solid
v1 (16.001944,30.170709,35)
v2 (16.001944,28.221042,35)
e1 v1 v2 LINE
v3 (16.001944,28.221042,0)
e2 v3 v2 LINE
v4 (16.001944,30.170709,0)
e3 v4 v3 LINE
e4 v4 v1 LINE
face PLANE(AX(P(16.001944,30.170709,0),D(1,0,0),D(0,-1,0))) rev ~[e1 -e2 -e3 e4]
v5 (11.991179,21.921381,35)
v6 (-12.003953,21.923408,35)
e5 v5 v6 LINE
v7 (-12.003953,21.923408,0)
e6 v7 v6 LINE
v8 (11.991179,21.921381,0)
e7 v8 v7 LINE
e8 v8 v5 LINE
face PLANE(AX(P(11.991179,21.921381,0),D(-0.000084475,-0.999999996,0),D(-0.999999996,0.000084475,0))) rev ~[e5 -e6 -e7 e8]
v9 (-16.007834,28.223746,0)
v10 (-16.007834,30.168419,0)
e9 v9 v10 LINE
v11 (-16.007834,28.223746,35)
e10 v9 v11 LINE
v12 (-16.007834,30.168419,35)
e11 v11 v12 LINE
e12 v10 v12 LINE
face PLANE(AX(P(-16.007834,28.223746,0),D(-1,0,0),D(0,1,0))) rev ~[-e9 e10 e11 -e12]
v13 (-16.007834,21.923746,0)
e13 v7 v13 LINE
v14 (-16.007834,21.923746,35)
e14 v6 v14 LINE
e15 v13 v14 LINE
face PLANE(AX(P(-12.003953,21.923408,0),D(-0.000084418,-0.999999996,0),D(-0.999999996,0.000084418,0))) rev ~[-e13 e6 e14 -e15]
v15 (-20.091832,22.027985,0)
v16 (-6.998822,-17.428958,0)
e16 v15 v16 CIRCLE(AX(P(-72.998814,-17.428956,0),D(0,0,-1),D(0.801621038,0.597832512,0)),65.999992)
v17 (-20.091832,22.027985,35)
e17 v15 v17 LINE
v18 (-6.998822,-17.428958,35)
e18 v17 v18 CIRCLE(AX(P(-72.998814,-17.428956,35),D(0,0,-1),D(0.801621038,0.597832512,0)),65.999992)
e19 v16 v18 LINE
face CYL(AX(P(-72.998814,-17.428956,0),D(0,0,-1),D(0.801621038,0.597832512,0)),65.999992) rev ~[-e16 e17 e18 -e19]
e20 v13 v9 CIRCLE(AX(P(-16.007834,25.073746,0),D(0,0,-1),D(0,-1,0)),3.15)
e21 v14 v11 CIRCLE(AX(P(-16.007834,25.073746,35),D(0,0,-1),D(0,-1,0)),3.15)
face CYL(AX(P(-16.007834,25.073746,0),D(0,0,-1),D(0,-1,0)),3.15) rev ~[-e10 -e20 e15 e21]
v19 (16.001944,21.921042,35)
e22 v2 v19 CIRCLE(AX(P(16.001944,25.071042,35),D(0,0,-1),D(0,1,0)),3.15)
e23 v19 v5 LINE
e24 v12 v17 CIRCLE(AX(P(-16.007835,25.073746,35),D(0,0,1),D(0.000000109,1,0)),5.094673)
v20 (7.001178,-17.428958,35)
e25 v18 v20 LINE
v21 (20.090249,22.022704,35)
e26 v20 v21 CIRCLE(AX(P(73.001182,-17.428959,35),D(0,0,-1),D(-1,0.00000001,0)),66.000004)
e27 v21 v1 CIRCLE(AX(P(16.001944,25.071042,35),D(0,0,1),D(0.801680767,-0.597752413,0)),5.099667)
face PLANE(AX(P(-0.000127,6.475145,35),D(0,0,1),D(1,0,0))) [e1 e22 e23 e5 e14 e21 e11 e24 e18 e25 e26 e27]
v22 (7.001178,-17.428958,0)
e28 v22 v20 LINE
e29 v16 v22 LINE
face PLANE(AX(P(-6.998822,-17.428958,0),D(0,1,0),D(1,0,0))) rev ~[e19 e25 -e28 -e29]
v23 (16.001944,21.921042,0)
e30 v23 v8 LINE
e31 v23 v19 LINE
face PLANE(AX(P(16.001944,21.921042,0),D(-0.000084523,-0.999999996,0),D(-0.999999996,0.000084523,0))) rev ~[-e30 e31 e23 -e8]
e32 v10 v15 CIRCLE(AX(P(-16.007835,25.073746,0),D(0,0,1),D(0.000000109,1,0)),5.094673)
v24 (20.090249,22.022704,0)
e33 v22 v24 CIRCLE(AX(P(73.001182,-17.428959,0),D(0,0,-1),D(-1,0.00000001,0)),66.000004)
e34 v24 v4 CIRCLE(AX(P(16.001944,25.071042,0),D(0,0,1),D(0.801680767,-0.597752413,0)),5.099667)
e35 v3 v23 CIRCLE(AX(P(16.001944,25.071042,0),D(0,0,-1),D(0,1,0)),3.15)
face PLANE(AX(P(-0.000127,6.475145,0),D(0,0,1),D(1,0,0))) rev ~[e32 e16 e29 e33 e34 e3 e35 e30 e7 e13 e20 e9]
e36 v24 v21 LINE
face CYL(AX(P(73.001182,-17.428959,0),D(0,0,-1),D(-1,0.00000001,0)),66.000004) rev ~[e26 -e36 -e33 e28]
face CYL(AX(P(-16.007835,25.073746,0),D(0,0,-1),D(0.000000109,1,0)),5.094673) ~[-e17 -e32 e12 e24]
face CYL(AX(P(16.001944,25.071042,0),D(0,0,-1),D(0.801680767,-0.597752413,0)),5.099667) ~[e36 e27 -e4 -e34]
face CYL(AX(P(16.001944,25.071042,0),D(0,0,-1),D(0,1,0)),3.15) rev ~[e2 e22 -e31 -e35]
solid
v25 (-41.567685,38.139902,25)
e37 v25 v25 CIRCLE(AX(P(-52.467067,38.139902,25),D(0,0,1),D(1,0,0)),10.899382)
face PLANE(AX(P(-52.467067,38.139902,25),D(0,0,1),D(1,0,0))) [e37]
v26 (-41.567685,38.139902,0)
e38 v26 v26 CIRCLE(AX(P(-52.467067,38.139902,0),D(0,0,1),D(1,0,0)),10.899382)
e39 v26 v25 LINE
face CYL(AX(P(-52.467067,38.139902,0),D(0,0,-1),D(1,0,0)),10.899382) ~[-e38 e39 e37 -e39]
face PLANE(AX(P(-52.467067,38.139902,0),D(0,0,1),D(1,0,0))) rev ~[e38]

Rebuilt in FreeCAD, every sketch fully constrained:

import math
import FreeCAD as App
import Part
import Sketcher
from FreeCAD import Vector
Q = App.Units.Quantity

doc = App.newDocument("Part")
params = doc.addObject("Spreadsheet::Sheet", "Params")
for row, (alias, value) in enumerate([
    ("sketch1_width", "14 mm"),
    ("sketch1_radius", "3.15 mm"),
    ("pad1_length", "35 mm"),
    ("pad2_length", "25 mm"),
], start=1):
    params.set(f"A{row}", alias)
    params.set(f"B{row}", "=" + value)
    params.setAlias(f"B{row}", alias)

body = doc.addObject("PartDesign::Body", "Body")

sketch1 = body.newObject("Sketcher::SketchObject", "Sketch")
sketch1.AttachmentSupport = (doc.getObject("XY_Plane"), [""])
sketch1.MapMode = "FlatFace"
sketch1.addGeometry([
    Part.LineSegment(Vector(-7, -17.4, 0), Vector(7, -17.4, 0)),
    Part.ArcOfCircle(Part.Circle(Vector(73, -17.4, 0), Vector(0, 0, 1), 66), math.radians(143), math.radians(180)),
    Part.ArcOfCircle(Part.Circle(Vector(16, 25.1, 0), Vector(0, 0, 1), 5.1), math.radians(-37), math.radians(90)),
    Part.LineSegment(Vector(16, 30.2, 0), Vector(16, 28.2, 0)),
    Part.ArcOfCircle(Part.Circle(Vector(16, 25.1, 0), Vector(0, 0, 1), 3.1), math.radians(-90), math.radians(90)),
    Part.LineSegment(Vector(16, 21.9, 0), Vector(12, 21.9, 0)),
    Part.LineSegment(Vector(12, 21.9, 0), Vector(-12, 21.9, 0)),
    Part.LineSegment(Vector(-12, 21.9, 0), Vector(-16, 21.9, 0)),
    Part.ArcOfCircle(Part.Circle(Vector(-16, 25.1, 0), Vector(0, 0, 1), 3.1), math.radians(90), math.radians(270)),
    Part.LineSegment(Vector(-16, 28.2, 0), Vector(-16, 30.2, 0)),
    Part.ArcOfCircle(Part.Circle(Vector(-16, 25.1, 0), Vector(0, 0, 1), 5.1), math.radians(90), math.radians(217)),
    Part.ArcOfCircle(Part.Circle(Vector(-73, -17.4, 0), Vector(0, 0, 1), 66), math.radians(0), math.radians(37)),
], False)
sketch1.addConstraint([
    Sketcher.Constraint("Coincident", 0, 2, 1, 2),
    Sketcher.Constraint("Tangent", 1, 1, 2, 1),
    Sketcher.Constraint("Coincident", 2, 2, 3, 1),
    Sketcher.Constraint("Coincident", 3, 2, 4, 2),
    Sketcher.Constraint("Coincident", 4, 1, 5, 1),
    Sketcher.Constraint("Coincident", 5, 2, 6, 1),
    Sketcher.Constraint("Coincident", 6, 2, 7, 1),
    Sketcher.Constraint("Coincident", 7, 2, 8, 2),
    Sketcher.Constraint("Coincident", 8, 1, 9, 1),
    Sketcher.Constraint("Coincident", 9, 2, 10, 1),
    Sketcher.Constraint("Tangent", 10, 2, 11, 2),
    Sketcher.Constraint("Coincident", 11, 1, 0, 1),
    Sketcher.Constraint("Horizontal", 0),
    Sketcher.Constraint("Vertical", 3),
    Sketcher.Constraint("Vertical", 9),
    Sketcher.Constraint("Coincident", 4, 3, 2, 3),
    Sketcher.Constraint("Coincident", 10, 3, 8, 3),
    Sketcher.Constraint("Equal", 4, 8),
    Sketcher.Constraint("Parallel", 5, 6),
    Sketcher.Constraint("Parallel", 6, 7),
    Sketcher.Constraint("Horizontal", 11, 3, 0, 2),
    Sketcher.Constraint("Vertical", 4, 3, 2, 2),
    Sketcher.Constraint("Vertical", 3, 2, 4, 1),
    Sketcher.Constraint("Vertical", 10, 3, 7, 2),
    Sketcher.Constraint("Vertical", 7, 2, 8, 1),
    Sketcher.Constraint("DistanceX", 0, 1, 0, 2, Q("14 mm")),
    Sketcher.Constraint("Radius", 4, Q("3.15 mm")),
    Sketcher.Constraint("DistanceY", 1, 3, 2, 3, Q("42.500001 mm")),
    Sketcher.Constraint("DistanceY", 11, 3, 4, 3, Q("42.499998 mm")),
    Sketcher.Constraint("Radius", 1, Q("66.000004 mm")),
    Sketcher.Constraint("Radius", 2, Q("5.099667 mm")),
    Sketcher.Constraint("Radius", 10, Q("5.094673 mm")),
    Sketcher.Constraint("Radius", 11, Q("65.999992 mm")),
    Sketcher.Constraint("Distance", 7, Q("4.003881 mm")),
    Sketcher.Constraint("DistanceX", -1, 1, 1, 3, Q("73.001182 mm")),
    Sketcher.Constraint("DistanceY", 1, 3, -1, 1, Q("17.428959 mm")),
    Sketcher.Constraint("DistanceX", -1, 1, 5, 2, Q("11.991179 mm")),
    Sketcher.Constraint("DistanceY", -1, 1, 5, 2, Q("21.921381 mm")),
])
sketch1.setExpression("Constraints[25]", "Params.sketch1_width")
sketch1.setExpression("Constraints[26]", "Params.sketch1_radius")
pad1 = body.newObject("PartDesign::Pad", "Pad")
pad1.Profile = sketch1
pad1.setExpression("Length", "Params.pad1_length")
body2 = doc.addObject("PartDesign::Body", "Body001")

sketch2 = body2.newObject("Sketcher::SketchObject", "Sketch001")
sketch2.AttachmentSupport = (doc.getObject("XY_Plane001"), [""])
sketch2.MapMode = "FlatFace"
sketch2.addGeometry(Part.Circle(Vector(-52, 38, 0), Vector(0, 0, 1), 11), False)
sketch2.addConstraint([
    Sketcher.Constraint("Diameter", 0, Q("21.798764 mm")),
    Sketcher.Constraint("DistanceX", 0, 3, -1, 1, Q("52.467067 mm")),
    Sketcher.Constraint("DistanceY", -1, 1, 0, 3, Q("38.139902 mm")),
])
pad2 = body2.newObject("PartDesign::Pad", "Pad001")
pad2.Profile = sketch2
pad2.setExpression("Length", "Params.pad2_length")

doc.recompute()
